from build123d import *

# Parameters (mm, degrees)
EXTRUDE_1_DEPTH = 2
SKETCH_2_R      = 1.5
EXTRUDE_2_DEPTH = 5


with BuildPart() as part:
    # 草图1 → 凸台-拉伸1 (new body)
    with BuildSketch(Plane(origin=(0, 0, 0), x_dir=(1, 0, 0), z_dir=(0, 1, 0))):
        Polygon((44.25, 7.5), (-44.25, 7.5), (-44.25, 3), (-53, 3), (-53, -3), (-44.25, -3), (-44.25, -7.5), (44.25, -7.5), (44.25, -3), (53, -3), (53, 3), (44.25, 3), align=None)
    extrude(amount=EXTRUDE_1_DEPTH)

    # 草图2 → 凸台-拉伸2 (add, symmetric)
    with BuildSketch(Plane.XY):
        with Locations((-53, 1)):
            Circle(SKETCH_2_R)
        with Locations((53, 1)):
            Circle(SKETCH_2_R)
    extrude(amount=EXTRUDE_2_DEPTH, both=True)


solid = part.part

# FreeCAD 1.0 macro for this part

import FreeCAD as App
import Part
import Sketcher
from FreeCAD import Vector


def add_polygon(sketch, points):
    """Adds a closed chain of lines whose ends are joined by coincident constraints."""
    first, n = sketch.GeometryCount, len(points)
    for a, b in zip(points, points[1:] + points[:1]):
        sketch.addGeometry(Part.LineSegment(App.Vector(*a, 0), App.Vector(*b, 0)), False)
    for i in range(n):
        sketch.addConstraint(Sketcher.Constraint("Coincident", first + i, 2, first + (i + 1) % n, 1))

doc = App.newDocument("Part")
body = doc.addObject("PartDesign::Body", "Body")

sketch1 = doc.addObject("Sketcher::SketchObject", "Sketch")
body.addObject(sketch1)
sketch1.AttachmentSupport = (doc.XZ_Plane, [""])
sketch1.MapMode = "FlatFace"
add_polygon(sketch1, [(44.2, -7.5), (-44.2, -7.5), (-44.2, -3), (-53, -3), (-53, 3), (-44.2, 3), (-44.2, 7.5), (44.2, 7.5), (44.2, 3), (53, 3), (53, -3), (44.2, -3)])
sketch1.addConstraint([
    Sketcher.Constraint("Horizontal", 0),
    Sketcher.Constraint("Vertical", 1),
    Sketcher.Constraint("Horizontal", 2),
    Sketcher.Constraint("Vertical", 3),
    Sketcher.Constraint("Horizontal", 4),
    Sketcher.Constraint("Vertical", 5),
    Sketcher.Constraint("Horizontal", 6),
    Sketcher.Constraint("Vertical", 7),
    Sketcher.Constraint("Horizontal", 8),
    Sketcher.Constraint("Vertical", 9),
    Sketcher.Constraint("Horizontal", 10),
    Sketcher.Constraint("Vertical", 11),
    Sketcher.Constraint("Symmetric", 0, 2, 6, 2, -1, 1),
    Sketcher.Constraint("Symmetric", 2, 2, 8, 2, -1, 1),
    Sketcher.Constraint("Symmetric", 4, 2, 10, 2, -1, 1),
    Sketcher.Constraint("Symmetric", 4, 2, 7, 2, -2),
    Sketcher.Constraint("DistanceY", 3, 1, 3, 2, 6.0),
    Sketcher.Constraint("DistanceX", 0, 2, 0, 1, 88.5),
    Sketcher.Constraint("DistanceY", 1, 1, 1, 2, 4.5),
    Sketcher.Constraint("DistanceX", 2, 2, -1, 1, 53.0),
])
pad1 = doc.addObject("PartDesign::Pad", "Pad")
body.addObject(pad1)
pad1.Profile = sketch1
pad1.Length = 2
pad1.Reversed = True

sketch2 = doc.addObject("Sketcher::SketchObject", "Sketch001")
body.addObject(sketch2)
sketch2.AttachmentSupport = (doc.XY_Plane, [""])
sketch2.MapMode = "FlatFace"
sketch2.addGeometry([
    Part.Circle(Vector(-53, 1, 0), Vector(0, 0, 1), 1.5),
    Part.Circle(Vector(53, 1, 0), Vector(0, 0, 1), 1.5),
], False)
sketch2.addConstraint([
    Sketcher.Constraint("Equal", 0, 1),
    Sketcher.Constraint("Symmetric", 0, 3, 1, 3, -2),
    Sketcher.Constraint("Diameter", 0, 3.0),
    Sketcher.Constraint("DistanceX", 0, 3, -1, 1, 53.0),
    Sketcher.Constraint("DistanceY", -1, 1, 0, 3, 1.0),
])
pad2 = doc.addObject("PartDesign::Pad", "Pad001")
body.addObject(pad2)
pad2.Profile = sketch2
pad2.Length = 10
pad2.Midplane = True

doc.recompute()
